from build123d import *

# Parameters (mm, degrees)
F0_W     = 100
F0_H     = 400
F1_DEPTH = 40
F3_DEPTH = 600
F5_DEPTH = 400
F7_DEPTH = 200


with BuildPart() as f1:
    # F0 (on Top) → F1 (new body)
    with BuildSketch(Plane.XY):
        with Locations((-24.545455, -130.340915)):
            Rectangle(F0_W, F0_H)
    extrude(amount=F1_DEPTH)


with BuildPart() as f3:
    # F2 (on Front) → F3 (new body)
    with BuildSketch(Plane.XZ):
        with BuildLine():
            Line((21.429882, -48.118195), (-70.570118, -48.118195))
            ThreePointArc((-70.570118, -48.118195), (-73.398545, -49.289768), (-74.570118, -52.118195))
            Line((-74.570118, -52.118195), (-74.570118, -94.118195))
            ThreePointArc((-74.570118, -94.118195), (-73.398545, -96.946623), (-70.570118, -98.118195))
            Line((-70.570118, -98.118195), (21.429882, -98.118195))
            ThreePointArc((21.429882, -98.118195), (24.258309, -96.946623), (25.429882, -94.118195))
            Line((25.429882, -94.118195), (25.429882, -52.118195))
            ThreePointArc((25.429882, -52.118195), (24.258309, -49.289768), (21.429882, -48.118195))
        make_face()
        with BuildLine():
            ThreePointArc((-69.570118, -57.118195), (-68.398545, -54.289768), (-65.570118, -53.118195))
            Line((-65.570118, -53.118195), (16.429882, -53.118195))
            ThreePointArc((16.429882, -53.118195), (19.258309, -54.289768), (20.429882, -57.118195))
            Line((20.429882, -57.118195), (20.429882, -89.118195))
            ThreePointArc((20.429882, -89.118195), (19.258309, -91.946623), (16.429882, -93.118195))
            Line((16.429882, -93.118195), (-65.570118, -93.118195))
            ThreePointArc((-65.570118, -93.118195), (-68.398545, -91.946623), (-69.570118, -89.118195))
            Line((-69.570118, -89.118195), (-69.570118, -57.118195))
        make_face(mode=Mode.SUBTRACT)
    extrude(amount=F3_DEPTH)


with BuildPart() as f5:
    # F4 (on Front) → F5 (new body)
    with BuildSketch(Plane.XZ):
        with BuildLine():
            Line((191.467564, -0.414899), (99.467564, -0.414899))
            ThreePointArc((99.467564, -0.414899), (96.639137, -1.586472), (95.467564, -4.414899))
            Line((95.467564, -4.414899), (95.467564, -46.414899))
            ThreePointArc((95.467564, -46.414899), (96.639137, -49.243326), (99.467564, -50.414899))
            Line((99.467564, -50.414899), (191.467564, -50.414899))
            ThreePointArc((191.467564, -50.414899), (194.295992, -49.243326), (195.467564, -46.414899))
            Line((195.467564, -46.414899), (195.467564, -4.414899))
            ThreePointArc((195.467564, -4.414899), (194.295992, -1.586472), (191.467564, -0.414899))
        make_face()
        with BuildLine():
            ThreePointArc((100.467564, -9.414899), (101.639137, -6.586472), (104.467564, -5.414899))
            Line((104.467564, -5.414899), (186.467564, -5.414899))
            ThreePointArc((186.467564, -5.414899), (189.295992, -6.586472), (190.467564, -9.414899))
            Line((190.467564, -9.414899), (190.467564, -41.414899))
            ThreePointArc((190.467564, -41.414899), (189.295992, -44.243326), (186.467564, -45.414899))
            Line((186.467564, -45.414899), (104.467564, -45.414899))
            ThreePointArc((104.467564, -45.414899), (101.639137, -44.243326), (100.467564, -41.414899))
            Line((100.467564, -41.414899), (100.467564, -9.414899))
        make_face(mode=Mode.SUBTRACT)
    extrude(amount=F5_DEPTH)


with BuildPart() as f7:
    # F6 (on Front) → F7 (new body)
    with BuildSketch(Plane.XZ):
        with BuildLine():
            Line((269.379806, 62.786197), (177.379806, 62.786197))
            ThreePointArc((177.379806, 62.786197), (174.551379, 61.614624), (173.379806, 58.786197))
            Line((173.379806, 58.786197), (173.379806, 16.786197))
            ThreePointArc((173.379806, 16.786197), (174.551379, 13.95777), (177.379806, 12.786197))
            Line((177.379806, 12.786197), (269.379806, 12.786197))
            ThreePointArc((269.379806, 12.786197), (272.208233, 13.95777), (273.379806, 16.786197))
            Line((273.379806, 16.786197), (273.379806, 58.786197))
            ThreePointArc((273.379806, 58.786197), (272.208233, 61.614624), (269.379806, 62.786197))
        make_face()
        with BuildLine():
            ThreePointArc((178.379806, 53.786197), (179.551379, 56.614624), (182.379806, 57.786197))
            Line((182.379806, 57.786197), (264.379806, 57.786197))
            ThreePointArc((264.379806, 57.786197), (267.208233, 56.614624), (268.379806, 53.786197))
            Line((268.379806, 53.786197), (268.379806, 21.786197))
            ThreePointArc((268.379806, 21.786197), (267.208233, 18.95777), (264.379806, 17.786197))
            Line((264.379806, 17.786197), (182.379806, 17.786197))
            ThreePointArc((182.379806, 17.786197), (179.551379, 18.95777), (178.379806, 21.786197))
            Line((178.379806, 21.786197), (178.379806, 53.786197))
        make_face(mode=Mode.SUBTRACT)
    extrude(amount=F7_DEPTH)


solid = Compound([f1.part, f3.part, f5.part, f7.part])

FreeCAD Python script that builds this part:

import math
import FreeCAD as App
import Part
import Sketcher
from FreeCAD import Vector
Q = App.Units.Quantity


def add_polygon(sketch, points):
    """Adds a closed chain of lines whose ends are joined by coincident constraints."""
    first, n = sketch.GeometryCount, len(points)
    for a, b in zip(points, points[1:] + points[:1]):
        sketch.addGeometry(Part.LineSegment(App.Vector(*a, 0), App.Vector(*b, 0)), False)
    for i in range(n):
        sketch.addConstraint(Sketcher.Constraint("Coincident", first + i, 2, first + (i + 1) % n, 1))

doc = App.newDocument("Part")
body = doc.addObject("PartDesign::Body", "Body")

sketch1 = body.newObject("Sketcher::SketchObject", "Sketch")
sketch1.AttachmentSupport = (doc.getObject("XY_Plane"), [""])
sketch1.MapMode = "FlatFace"
add_polygon(sketch1, [(-75, 70), (-75, -330), (25, -330), (25, 70)])
sketch1.addConstraint([
    Sketcher.Constraint("Vertical", 0),
    Sketcher.Constraint("Horizontal", 1),
    Sketcher.Constraint("Vertical", 2),
    Sketcher.Constraint("Horizontal", 3),
    Sketcher.Constraint("DistanceX", 1, 1, 1, 2, Q("100 mm")),
    Sketcher.Constraint("DistanceY", 0, 2, 0, 1, Q("400 mm")),
    Sketcher.Constraint("DistanceX", 0, 2, -1, 1, Q("74.545455 mm")),
    Sketcher.Constraint("DistanceY", 0, 2, -1, 1, Q("330.340915 mm")),
])
pad1 = body.newObject("PartDesign::Pad", "Pad")
pad1.Profile = sketch1
pad1.Length = 40
body2 = doc.addObject("PartDesign::Body", "Body001")

sketch2 = body2.newObject("Sketcher::SketchObject", "Sketch001")
sketch2.AttachmentSupport = (doc.getObject("XZ_Plane001"), [""])
sketch2.MapMode = "FlatFace"
sketch2.addGeometry([
    Part.LineSegment(Vector(21.4, -48.1, 0), Vector(-70.6, -48.1, 0)),
    Part.ArcOfCircle(Part.Circle(Vector(-70.6, -52.1, 0), Vector(0, 0, 1), 4), math.radians(90), math.radians(180)),
    Part.LineSegment(Vector(-74.6, -52.1, 0), Vector(-74.6, -94.1, 0)),
    Part.ArcOfCircle(Part.Circle(Vector(-70.6, -94.1, 0), Vector(0, 0, 1), 4), math.radians(180), math.radians(270)),
    Part.LineSegment(Vector(-70.6, -98.1, 0), Vector(21.4, -98.1, 0)),
    Part.ArcOfCircle(Part.Circle(Vector(21.4, -94.1, 0), Vector(0, 0, 1), 4), math.radians(-90), math.radians(0)),
    Part.LineSegment(Vector(25.4, -94.1, 0), Vector(25.4, -52.1, 0)),
    Part.ArcOfCircle(Part.Circle(Vector(21.4, -52.1, 0), Vector(0, 0, 1), 4), math.radians(0), math.radians(90)),
    Part.LineSegment(Vector(-69.6, -89.1, 0), Vector(-69.6, -57.1, 0)),
    Part.ArcOfCircle(Part.Circle(Vector(-65.6, -57.1, 0), Vector(0, 0, 1), 4), math.radians(90), math.radians(180)),
    Part.LineSegment(Vector(-65.6, -53.1, 0), Vector(16.4, -53.1, 0)),
    Part.ArcOfCircle(Part.Circle(Vector(16.4, -57.1, 0), Vector(0, 0, 1), 4), math.radians(0), math.radians(90)),
    Part.LineSegment(Vector(20.4, -57.1, 0), Vector(20.4, -89.1, 0)),
    Part.ArcOfCircle(Part.Circle(Vector(16.4, -89.1, 0), Vector(0, 0, 1), 4), math.radians(-90), math.radians(0)),
    Part.LineSegment(Vector(16.4, -93.1, 0), Vector(-65.6, -93.1, 0)),
    Part.ArcOfCircle(Part.Circle(Vector(-65.6, -89.1, 0), Vector(0, 0, 1), 4), math.radians(180), math.radians(270)),
], False)
sketch2.addConstraint([
    Sketcher.Constraint("Tangent", 0, 2, 1, 1),
    Sketcher.Constraint("Tangent", 1, 2, 2, 1),
    Sketcher.Constraint("Tangent", 2, 2, 3, 1),
    Sketcher.Constraint("Tangent", 3, 2, 4, 1),
    Sketcher.Constraint("Tangent", 4, 2, 5, 1),
    Sketcher.Constraint("Tangent", 5, 2, 6, 1),
    Sketcher.Constraint("Tangent", 6, 2, 7, 1),
    Sketcher.Constraint("Tangent", 7, 2, 0, 1),
    Sketcher.Constraint("Tangent", 8, 2, 9, 2),
    Sketcher.Constraint("Tangent", 9, 1, 10, 1),
    Sketcher.Constraint("Tangent", 10, 2, 11, 2),
    Sketcher.Constraint("Tangent", 11, 1, 12, 1),
    Sketcher.Constraint("Tangent", 12, 2, 13, 2),
    Sketcher.Constraint("Tangent", 13, 1, 14, 1),
    Sketcher.Constraint("Tangent", 14, 2, 15, 2),
    Sketcher.Constraint("Tangent", 15, 1, 8, 1),
    Sketcher.Constraint("Horizontal", 0),
    Sketcher.Constraint("Vertical", 2),
    Sketcher.Constraint("Horizontal", 4),
    Sketcher.Constraint("Vertical", 6),
    Sketcher.Constraint("Vertical", 8),
    Sketcher.Constraint("Horizontal", 10),
    Sketcher.Constraint("Vertical", 12),
    Sketcher.Constraint("Horizontal", 14),
    Sketcher.Constraint("Equal", 1, 3),
    Sketcher.Constraint("Equal", 3, 5),
    Sketcher.Constraint("Equal", 5, 7),
    Sketcher.Constraint("Equal", 7, 9),
    Sketcher.Constraint("Equal", 9, 11),
    Sketcher.Constraint("Equal", 11, 13),
    Sketcher.Constraint("Equal", 13, 15),
    Sketcher.Constraint("Radius", 1, Q("4 mm")),
    Sketcher.Constraint("DistanceX", 0, 2, 0, 1, Q("92 mm")),
    Sketcher.Constraint("DistanceX", 10, 1, 10, 2, Q("82 mm")),
    Sketcher.Constraint("DistanceY", 2, 2, 2, 1, Q("42 mm")),
    Sketcher.Constraint("DistanceY", 8, 1, 8, 2, Q("32 mm")),
    Sketcher.Constraint("DistanceX", 1, 3, 9, 3, Q("5 mm")),
    Sketcher.Constraint("DistanceY", 9, 3, 1, 3, Q("5 mm")),
    Sketcher.Constraint("DistanceX", 3, 3, -1, 1, Q("70.570119 mm")),
    Sketcher.Constraint("DistanceY", 1, 3, -1, 1, Q("52.118195 mm")),
])
pad2 = body2.newObject("PartDesign::Pad", "Pad001")
pad2.Profile = sketch2
pad2.Length = 600
body3 = doc.addObject("PartDesign::Body", "Body002")

sketch3 = body3.newObject("Sketcher::SketchObject", "Sketch002")
sketch3.AttachmentSupport = (doc.getObject("XZ_Plane002"), [""])
sketch3.MapMode = "FlatFace"
sketch3.addGeometry([
    Part.LineSegment(Vector(191.5, -0.4, 0), Vector(99.5, -0.4, 0)),
    Part.ArcOfCircle(Part.Circle(Vector(99.5, -4.4, 0), Vector(0, 0, 1), 4), math.radians(90), math.radians(180)),
    Part.LineSegment(Vector(95.5, -4.4, 0), Vector(95.5, -46.4, 0)),
    Part.ArcOfCircle(Part.Circle(Vector(99.5, -46.4, 0), Vector(0, 0, 1), 4), math.radians(-180), math.radians(-90)),
    Part.LineSegment(Vector(99.5, -50.4, 0), Vector(191.5, -50.4, 0)),
    Part.ArcOfCircle(Part.Circle(Vector(191.5, -46.4, 0), Vector(0, 0, 1), 4), math.radians(-90), math.radians(0)),
    Part.LineSegment(Vector(195.5, -46.4, 0), Vector(195.5, -4.4, 0)),
    Part.ArcOfCircle(Part.Circle(Vector(191.5, -4.4, 0), Vector(0, 0, 1), 4), math.radians(0), math.radians(90)),
    Part.LineSegment(Vector(100.5, -41.4, 0), Vector(100.5, -9.4, 0)),
    Part.ArcOfCircle(Part.Circle(Vector(104.5, -9.4, 0), Vector(0, 0, 1), 4), math.radians(90), math.radians(180)),
    Part.LineSegment(Vector(104.5, -5.4, 0), Vector(186.5, -5.4, 0)),
    Part.ArcOfCircle(Part.Circle(Vector(186.5, -9.4, 0), Vector(0, 0, 1), 4), math.radians(0), math.radians(90)),
    Part.LineSegment(Vector(190.5, -9.4, 0), Vector(190.5, -41.4, 0)),
    Part.ArcOfCircle(Part.Circle(Vector(186.5, -41.4, 0), Vector(0, 0, 1), 4), math.radians(-90), math.radians(0)),
    Part.LineSegment(Vector(186.5, -45.4, 0), Vector(104.5, -45.4, 0)),
    Part.ArcOfCircle(Part.Circle(Vector(104.5, -41.4, 0), Vector(0, 0, 1), 4), math.radians(-180), math.radians(-90)),
], False)
sketch3.addConstraint([
    Sketcher.Constraint("Tangent", 0, 2, 1, 1),
    Sketcher.Constraint("Tangent", 1, 2, 2, 1),
    Sketcher.Constraint("Tangent", 2, 2, 3, 1),
    Sketcher.Constraint("Tangent", 3, 2, 4, 1),
    Sketcher.Constraint("Tangent", 4, 2, 5, 1),
    Sketcher.Constraint("Tangent", 5, 2, 6, 1),
    Sketcher.Constraint("Tangent", 6, 2, 7, 1),
    Sketcher.Constraint("Tangent", 7, 2, 0, 1),
    Sketcher.Constraint("Tangent", 8, 2, 9, 2),
    Sketcher.Constraint("Tangent", 9, 1, 10, 1),
    Sketcher.Constraint("Tangent", 10, 2, 11, 2),
    Sketcher.Constraint("Tangent", 11, 1, 12, 1),
    Sketcher.Constraint("Tangent", 12, 2, 13, 2),
    Sketcher.Constraint("Tangent", 13, 1, 14, 1),
    Sketcher.Constraint("Tangent", 14, 2, 15, 2),
    Sketcher.Constraint("Tangent", 15, 1, 8, 1),
    Sketcher.Constraint("Horizontal", 0),
    Sketcher.Constraint("Vertical", 2),
    Sketcher.Constraint("Horizontal", 4),
    Sketcher.Constraint("Vertical", 6),
    Sketcher.Constraint("Vertical", 8),
    Sketcher.Constraint("Horizontal", 10),
    Sketcher.Constraint("Vertical", 12),
    Sketcher.Constraint("Horizontal", 14),
    Sketcher.Constraint("Equal", 1, 3),
    Sketcher.Constraint("Equal", 3, 5),
    Sketcher.Constraint("Equal", 5, 7),
    Sketcher.Constraint("Equal", 7, 9),
    Sketcher.Constraint("Equal", 9, 11),
    Sketcher.Constraint("Equal", 11, 13),
    Sketcher.Constraint("Equal", 13, 15),
    Sketcher.Constraint("Radius", 1, Q("4 mm")),
    Sketcher.Constraint("DistanceX", 0, 2, 0, 1, Q("92 mm")),
    Sketcher.Constraint("DistanceX", 10, 1, 10, 2, Q("82 mm")),
    Sketcher.Constraint("DistanceY", 2, 2, 2, 1, Q("42 mm")),
    Sketcher.Constraint("DistanceY", 8, 1, 8, 2, Q("32 mm")),
    Sketcher.Constraint("DistanceX", 1, 3, 9, 3, Q("5 mm")),
    Sketcher.Constraint("DistanceY", 9, 3, 1, 3, Q("5 mm")),
    Sketcher.Constraint("DistanceY", 1, 3, -1, 1, Q("4.414899 mm")),
    Sketcher.Constraint("DistanceX", -1, 1, 1, 3, Q("99.467564 mm")),
])
pad3 = body3.newObject("PartDesign::Pad", "Pad002")
pad3.Profile = sketch3
pad3.Length = 400
body4 = doc.addObject("PartDesign::Body", "Body003")

sketch4 = body4.newObject("Sketcher::SketchObject", "Sketch003")
sketch4.AttachmentSupport = (doc.getObject("XZ_Plane003"), [""])
sketch4.MapMode = "FlatFace"
sketch4.addGeometry([
    Part.LineSegment(Vector(269.4, 62.8, 0), Vector(177.4, 62.8, 0)),
    Part.ArcOfCircle(Part.Circle(Vector(177.4, 58.8, 0), Vector(0, 0, 1), 4), math.radians(90), math.radians(180)),
    Part.LineSegment(Vector(173.4, 58.8, 0), Vector(173.4, 16.8, 0)),
    Part.ArcOfCircle(Part.Circle(Vector(177.4, 16.8, 0), Vector(0, 0, 1), 4), math.radians(-180), math.radians(-90)),
    Part.LineSegment(Vector(177.4, 12.8, 0), Vector(269.4, 12.8, 0)),
    Part.ArcOfCircle(Part.Circle(Vector(269.4, 16.8, 0), Vector(0, 0, 1), 4), math.radians(-90), math.radians(0)),
    Part.LineSegment(Vector(273.4, 16.8, 0), Vector(273.4, 58.8, 0)),
    Part.ArcOfCircle(Part.Circle(Vector(269.4, 58.8, 0), Vector(0, 0, 1), 4), math.radians(0), math.radians(90)),
    Part.LineSegment(Vector(178.4, 21.8, 0), Vector(178.4, 53.8, 0)),
    Part.ArcOfCircle(Part.Circle(Vector(182.4, 53.8, 0), Vector(0, 0, 1), 4), math.radians(90), math.radians(180)),
    Part.LineSegment(Vector(182.4, 57.8, 0), Vector(264.4, 57.8, 0)),
    Part.ArcOfCircle(Part.Circle(Vector(264.4, 53.8, 0), Vector(0, 0, 1), 4), math.radians(0), math.radians(90)),
    Part.LineSegment(Vector(268.4, 53.8, 0), Vector(268.4, 21.8, 0)),
    Part.ArcOfCircle(Part.Circle(Vector(264.4, 21.8, 0), Vector(0, 0, 1), 4), math.radians(-90), math.radians(0)),
    Part.LineSegment(Vector(264.4, 17.8, 0), Vector(182.4, 17.8, 0)),
    Part.ArcOfCircle(Part.Circle(Vector(182.4, 21.8, 0), Vector(0, 0, 1), 4), math.radians(-180), math.radians(-90)),
], False)
sketch4.addConstraint([
    Sketcher.Constraint("Tangent", 0, 2, 1, 1),
    Sketcher.Constraint("Tangent", 1, 2, 2, 1),
    Sketcher.Constraint("Tangent", 2, 2, 3, 1),
    Sketcher.Constraint("Tangent", 3, 2, 4, 1),
    Sketcher.Constraint("Tangent", 4, 2, 5, 1),
    Sketcher.Constraint("Tangent", 5, 2, 6, 1),
    Sketcher.Constraint("Tangent", 6, 2, 7, 1),
    Sketcher.Constraint("Tangent", 7, 2, 0, 1),
    Sketcher.Constraint("Tangent", 8, 2, 9, 2),
    Sketcher.Constraint("Tangent", 9, 1, 10, 1),
    Sketcher.Constraint("Tangent", 10, 2, 11, 2),
    Sketcher.Constraint("Tangent", 11, 1, 12, 1),
    Sketcher.Constraint("Tangent", 12, 2, 13, 2),
    Sketcher.Constraint("Tangent", 13, 1, 14, 1),
    Sketcher.Constraint("Tangent", 14, 2, 15, 2),
    Sketcher.Constraint("Tangent", 15, 1, 8, 1),
    Sketcher.Constraint("Horizontal", 0),
    Sketcher.Constraint("Vertical", 2),
    Sketcher.Constraint("Horizontal", 4),
    Sketcher.Constraint("Vertical", 6),
    Sketcher.Constraint("Vertical", 8),
    Sketcher.Constraint("Horizontal", 10),
    Sketcher.Constraint("Vertical", 12),
    Sketcher.Constraint("Horizontal", 14),
    Sketcher.Constraint("Equal", 1, 3),
    Sketcher.Constraint("Equal", 3, 5),
    Sketcher.Constraint("Equal", 5, 7),
    Sketcher.Constraint("Equal", 7, 9),
    Sketcher.Constraint("Equal", 9, 11),
    Sketcher.Constraint("Equal", 11, 13),
    Sketcher.Constraint("Equal", 13, 15),
    Sketcher.Constraint("Radius", 1, Q("4 mm")),
    Sketcher.Constraint("DistanceX", 0, 2, 0, 1, Q("92 mm")),
    Sketcher.Constraint("DistanceX", 10, 1, 10, 2, Q("82 mm")),
    Sketcher.Constraint("DistanceY", 2, 2, 2, 1, Q("42 mm")),
    Sketcher.Constraint("DistanceY", 8, 1, 8, 2, Q("32 mm")),
    Sketcher.Constraint("DistanceX", 1, 3, 9, 3, Q("5 mm")),
    Sketcher.Constraint("DistanceY", 9, 3, 1, 3, Q("5 mm")),
    Sketcher.Constraint("DistanceX", -1, 1, 1, 3, Q("177.379806 mm")),
    Sketcher.Constraint("DistanceY", -1, 1, 1, 3, Q("58.786197 mm")),
])
pad4 = body4.newObject("PartDesign::Pad", "Pad003")
pad4.Profile = sketch4
pad4.Length = 200

doc.recompute()
